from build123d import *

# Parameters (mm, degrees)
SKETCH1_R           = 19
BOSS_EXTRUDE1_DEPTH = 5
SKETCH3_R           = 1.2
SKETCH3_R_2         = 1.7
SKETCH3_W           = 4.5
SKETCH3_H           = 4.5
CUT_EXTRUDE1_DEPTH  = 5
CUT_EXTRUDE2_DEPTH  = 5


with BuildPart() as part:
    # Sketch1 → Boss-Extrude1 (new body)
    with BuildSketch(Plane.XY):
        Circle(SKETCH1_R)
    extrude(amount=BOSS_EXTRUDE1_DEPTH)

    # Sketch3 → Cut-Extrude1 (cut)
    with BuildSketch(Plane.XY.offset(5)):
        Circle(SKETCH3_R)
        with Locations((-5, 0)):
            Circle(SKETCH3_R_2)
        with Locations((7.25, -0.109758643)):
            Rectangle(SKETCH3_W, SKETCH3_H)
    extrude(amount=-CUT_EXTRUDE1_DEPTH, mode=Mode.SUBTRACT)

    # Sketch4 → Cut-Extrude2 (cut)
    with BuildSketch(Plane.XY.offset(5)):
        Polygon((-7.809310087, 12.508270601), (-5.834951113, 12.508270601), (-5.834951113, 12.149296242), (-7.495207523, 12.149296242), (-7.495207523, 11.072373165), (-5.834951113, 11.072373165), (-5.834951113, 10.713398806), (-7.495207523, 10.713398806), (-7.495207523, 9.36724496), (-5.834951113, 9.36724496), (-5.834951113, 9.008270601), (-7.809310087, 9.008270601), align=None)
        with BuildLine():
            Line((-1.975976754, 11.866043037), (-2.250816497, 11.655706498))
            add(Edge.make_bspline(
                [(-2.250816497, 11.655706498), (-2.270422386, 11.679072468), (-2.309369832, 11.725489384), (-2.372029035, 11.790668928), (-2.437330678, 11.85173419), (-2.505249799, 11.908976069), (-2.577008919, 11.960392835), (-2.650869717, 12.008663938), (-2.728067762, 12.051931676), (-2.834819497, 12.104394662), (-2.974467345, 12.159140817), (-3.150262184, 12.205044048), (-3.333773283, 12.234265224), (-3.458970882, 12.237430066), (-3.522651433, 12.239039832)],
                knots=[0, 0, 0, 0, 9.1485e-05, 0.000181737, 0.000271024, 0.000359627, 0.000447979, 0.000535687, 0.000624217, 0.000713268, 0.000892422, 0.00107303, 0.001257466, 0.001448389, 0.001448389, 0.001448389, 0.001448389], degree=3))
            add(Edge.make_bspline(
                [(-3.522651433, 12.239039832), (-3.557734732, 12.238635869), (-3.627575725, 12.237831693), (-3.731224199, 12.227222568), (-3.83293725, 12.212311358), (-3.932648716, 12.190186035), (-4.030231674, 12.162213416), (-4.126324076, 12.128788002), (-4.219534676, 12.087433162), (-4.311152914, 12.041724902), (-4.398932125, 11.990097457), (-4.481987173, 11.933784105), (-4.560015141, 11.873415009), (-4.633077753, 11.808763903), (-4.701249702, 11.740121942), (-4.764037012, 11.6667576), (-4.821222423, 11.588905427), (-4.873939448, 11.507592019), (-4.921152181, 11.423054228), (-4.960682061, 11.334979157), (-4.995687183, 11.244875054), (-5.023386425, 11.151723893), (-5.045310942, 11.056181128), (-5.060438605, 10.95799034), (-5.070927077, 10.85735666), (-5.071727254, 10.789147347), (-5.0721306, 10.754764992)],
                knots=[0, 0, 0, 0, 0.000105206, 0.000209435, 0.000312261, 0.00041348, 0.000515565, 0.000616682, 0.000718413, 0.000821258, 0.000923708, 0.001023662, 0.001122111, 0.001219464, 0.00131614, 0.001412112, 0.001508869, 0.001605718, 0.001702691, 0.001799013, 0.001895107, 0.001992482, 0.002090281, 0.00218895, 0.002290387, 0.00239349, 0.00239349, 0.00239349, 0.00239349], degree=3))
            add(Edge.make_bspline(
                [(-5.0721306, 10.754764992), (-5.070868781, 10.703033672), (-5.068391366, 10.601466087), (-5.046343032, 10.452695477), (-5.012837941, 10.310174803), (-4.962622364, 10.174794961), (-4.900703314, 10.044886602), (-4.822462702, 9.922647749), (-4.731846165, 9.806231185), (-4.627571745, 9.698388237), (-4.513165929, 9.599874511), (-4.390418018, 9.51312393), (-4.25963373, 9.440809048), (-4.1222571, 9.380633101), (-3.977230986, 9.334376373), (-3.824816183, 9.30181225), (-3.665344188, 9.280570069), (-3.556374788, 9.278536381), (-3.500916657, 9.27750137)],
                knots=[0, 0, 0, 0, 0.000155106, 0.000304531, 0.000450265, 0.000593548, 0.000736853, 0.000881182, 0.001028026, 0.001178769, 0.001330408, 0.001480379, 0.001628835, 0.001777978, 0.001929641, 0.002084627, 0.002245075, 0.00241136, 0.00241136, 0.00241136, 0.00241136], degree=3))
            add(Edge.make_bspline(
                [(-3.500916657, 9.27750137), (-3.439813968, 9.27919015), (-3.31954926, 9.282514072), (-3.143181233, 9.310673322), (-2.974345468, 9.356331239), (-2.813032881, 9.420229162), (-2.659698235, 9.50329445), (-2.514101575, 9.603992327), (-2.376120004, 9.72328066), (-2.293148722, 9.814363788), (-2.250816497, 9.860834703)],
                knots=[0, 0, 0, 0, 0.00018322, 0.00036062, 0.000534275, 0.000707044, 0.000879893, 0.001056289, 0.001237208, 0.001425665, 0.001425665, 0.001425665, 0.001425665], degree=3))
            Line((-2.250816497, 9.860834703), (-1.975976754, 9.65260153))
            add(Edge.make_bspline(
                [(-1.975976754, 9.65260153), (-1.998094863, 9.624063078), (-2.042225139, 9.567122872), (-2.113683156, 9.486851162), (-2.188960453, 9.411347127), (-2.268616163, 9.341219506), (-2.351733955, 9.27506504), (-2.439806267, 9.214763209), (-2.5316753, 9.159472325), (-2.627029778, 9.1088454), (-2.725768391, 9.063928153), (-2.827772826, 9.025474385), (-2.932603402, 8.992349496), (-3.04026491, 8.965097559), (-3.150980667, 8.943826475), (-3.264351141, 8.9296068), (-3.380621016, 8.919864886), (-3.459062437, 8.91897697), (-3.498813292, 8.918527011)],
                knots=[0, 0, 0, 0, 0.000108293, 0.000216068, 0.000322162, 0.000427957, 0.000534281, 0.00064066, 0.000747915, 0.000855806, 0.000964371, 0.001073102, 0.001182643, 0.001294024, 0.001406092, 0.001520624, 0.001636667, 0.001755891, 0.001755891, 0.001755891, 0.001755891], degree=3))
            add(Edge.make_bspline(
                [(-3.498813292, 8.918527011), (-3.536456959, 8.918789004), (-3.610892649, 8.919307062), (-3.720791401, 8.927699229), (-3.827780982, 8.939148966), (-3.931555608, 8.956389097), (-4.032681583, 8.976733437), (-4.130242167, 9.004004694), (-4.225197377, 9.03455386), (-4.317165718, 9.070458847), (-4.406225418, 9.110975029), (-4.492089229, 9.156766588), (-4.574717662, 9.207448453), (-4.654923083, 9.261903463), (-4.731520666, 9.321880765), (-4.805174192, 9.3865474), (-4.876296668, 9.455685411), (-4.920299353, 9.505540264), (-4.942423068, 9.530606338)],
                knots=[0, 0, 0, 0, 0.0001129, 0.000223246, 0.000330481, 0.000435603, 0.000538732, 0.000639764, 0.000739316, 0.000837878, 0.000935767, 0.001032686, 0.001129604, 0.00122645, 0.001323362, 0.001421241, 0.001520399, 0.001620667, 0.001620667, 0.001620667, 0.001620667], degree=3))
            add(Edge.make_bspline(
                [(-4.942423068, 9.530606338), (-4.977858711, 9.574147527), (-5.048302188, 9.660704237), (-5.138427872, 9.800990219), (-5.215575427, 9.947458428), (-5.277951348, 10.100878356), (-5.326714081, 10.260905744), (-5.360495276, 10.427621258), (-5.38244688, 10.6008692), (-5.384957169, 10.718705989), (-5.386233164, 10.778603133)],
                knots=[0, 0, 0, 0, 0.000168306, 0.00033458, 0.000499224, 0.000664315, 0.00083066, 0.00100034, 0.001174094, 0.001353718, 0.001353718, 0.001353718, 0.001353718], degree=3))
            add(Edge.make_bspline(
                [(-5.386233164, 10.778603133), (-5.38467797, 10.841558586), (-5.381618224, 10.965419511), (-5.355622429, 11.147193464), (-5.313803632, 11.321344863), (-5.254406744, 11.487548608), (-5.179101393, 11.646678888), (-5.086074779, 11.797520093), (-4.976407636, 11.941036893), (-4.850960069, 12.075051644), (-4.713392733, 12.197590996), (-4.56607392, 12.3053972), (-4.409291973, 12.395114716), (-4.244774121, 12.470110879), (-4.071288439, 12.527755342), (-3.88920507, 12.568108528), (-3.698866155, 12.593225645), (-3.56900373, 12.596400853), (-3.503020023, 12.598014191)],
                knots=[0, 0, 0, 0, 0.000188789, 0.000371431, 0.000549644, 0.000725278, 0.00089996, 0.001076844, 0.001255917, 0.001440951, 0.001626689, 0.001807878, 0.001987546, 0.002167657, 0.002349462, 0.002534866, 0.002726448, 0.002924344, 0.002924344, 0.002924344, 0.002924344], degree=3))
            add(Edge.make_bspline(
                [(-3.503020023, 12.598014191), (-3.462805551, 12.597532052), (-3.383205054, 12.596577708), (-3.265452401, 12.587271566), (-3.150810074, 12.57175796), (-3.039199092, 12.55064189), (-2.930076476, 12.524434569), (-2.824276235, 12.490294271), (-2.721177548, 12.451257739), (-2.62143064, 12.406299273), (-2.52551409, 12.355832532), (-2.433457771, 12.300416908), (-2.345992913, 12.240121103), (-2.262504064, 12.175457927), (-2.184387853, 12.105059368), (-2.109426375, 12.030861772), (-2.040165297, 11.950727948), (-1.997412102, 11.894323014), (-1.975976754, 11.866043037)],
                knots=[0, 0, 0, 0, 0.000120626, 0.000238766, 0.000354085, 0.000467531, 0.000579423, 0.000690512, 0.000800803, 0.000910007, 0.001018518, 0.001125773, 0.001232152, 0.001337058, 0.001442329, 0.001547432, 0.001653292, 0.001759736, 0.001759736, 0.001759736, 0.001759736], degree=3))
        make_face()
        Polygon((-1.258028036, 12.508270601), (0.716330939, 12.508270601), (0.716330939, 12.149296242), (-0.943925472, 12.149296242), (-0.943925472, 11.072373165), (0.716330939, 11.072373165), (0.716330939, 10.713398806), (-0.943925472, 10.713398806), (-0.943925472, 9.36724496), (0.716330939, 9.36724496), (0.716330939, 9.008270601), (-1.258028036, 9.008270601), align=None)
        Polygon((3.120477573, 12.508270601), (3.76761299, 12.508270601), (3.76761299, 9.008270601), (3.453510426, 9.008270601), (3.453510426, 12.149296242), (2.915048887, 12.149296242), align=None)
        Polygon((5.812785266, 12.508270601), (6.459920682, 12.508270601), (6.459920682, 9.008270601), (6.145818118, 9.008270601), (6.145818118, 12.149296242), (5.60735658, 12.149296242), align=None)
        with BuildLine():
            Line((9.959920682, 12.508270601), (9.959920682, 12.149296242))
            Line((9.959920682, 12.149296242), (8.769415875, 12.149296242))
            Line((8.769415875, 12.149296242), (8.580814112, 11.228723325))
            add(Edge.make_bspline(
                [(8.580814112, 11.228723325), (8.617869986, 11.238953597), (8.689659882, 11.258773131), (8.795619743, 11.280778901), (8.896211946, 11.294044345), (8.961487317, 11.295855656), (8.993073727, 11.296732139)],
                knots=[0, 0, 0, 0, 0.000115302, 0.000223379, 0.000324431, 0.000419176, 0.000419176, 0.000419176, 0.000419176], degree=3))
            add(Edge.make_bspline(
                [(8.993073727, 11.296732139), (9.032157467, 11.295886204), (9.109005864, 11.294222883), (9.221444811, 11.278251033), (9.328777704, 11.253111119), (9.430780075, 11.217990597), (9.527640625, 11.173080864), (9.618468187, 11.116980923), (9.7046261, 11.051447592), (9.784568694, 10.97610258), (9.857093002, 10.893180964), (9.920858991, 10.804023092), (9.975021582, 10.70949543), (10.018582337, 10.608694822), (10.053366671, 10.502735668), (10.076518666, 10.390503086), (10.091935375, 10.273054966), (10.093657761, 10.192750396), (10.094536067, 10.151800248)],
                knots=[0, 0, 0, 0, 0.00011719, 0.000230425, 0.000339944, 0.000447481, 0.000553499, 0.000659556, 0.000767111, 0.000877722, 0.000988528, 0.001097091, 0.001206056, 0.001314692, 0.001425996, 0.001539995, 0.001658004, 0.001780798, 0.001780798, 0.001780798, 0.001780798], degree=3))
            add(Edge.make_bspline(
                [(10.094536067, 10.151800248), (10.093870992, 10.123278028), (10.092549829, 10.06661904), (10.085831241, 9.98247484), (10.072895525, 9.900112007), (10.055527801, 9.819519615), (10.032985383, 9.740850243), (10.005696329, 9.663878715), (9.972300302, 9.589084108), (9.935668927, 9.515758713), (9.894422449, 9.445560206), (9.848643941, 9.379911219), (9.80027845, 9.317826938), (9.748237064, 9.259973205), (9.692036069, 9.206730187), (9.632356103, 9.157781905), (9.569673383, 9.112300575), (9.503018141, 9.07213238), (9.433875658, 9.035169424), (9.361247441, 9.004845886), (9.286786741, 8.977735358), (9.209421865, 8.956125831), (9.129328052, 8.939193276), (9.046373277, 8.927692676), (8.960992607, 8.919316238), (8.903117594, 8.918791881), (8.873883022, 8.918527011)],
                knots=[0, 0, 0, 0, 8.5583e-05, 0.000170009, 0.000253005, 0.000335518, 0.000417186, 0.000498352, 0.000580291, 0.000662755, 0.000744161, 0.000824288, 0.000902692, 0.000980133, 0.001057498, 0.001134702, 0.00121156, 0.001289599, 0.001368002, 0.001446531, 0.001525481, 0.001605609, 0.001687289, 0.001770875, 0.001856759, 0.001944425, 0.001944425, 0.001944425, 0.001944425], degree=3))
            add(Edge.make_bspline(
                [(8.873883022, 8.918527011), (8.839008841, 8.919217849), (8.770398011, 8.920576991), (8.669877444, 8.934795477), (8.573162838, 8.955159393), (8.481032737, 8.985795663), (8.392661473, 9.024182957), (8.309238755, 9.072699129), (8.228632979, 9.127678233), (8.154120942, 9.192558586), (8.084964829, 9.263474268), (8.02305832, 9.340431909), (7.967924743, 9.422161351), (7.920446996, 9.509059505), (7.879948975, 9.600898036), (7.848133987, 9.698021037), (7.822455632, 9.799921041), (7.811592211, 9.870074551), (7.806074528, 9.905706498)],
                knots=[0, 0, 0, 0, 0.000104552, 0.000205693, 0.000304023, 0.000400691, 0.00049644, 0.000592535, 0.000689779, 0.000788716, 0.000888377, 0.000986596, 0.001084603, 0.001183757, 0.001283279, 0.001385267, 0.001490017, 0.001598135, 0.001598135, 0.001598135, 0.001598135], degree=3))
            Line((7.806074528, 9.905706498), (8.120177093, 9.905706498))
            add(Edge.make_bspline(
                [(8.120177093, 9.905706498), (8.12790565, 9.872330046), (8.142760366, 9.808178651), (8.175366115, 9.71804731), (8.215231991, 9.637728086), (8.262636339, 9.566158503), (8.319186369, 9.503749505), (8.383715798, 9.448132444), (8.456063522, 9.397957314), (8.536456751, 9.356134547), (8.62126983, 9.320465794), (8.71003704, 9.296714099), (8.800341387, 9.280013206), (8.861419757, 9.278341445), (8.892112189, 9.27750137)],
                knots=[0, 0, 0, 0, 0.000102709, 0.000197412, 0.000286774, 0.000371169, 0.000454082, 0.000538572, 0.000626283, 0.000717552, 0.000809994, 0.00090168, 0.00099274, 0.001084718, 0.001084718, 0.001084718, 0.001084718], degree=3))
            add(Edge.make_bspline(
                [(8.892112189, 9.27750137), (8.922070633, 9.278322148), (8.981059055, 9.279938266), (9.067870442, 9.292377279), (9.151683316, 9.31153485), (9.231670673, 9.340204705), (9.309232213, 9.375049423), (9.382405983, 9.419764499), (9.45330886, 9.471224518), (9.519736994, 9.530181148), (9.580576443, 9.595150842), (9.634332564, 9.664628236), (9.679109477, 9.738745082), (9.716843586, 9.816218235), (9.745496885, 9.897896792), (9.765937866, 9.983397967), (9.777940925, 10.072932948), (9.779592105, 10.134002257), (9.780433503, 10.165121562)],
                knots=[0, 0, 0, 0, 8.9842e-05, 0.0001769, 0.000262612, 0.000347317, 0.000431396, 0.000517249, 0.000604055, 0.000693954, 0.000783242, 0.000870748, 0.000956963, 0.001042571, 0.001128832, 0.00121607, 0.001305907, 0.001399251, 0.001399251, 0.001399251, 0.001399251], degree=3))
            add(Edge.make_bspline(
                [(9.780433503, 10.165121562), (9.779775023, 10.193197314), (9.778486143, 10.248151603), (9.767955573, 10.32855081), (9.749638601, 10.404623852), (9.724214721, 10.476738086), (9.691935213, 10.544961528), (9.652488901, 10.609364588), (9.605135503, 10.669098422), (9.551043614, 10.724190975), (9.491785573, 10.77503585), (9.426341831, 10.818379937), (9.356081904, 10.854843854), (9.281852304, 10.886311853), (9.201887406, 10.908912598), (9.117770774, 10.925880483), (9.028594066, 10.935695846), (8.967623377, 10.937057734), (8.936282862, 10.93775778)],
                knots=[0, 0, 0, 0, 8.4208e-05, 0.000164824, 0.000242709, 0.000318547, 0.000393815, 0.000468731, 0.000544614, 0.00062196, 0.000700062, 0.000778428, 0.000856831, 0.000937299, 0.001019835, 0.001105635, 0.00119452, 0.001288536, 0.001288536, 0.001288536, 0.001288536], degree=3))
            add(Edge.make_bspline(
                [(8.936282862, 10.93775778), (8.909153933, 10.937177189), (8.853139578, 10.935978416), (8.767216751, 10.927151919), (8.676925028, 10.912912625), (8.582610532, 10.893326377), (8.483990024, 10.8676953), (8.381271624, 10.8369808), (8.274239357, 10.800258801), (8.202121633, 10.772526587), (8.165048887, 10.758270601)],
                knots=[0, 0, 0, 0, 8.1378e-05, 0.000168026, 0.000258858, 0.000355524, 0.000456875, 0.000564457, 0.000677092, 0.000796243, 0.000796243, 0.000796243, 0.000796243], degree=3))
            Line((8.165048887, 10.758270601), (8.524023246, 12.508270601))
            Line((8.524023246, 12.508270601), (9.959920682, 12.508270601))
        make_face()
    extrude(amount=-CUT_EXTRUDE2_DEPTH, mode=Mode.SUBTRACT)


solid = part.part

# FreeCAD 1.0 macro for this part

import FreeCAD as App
import Part
import Sketcher
from FreeCAD import Vector
Q = App.Units.Quantity

doc = App.newDocument("Part")
body = doc.addObject("PartDesign::Body", "Body")

# Sketch on XY plane
sketch1 = doc.addObject("Sketcher::SketchObject", "Sketch")
body.addObject(sketch1)
sketch1.AttachmentSupport = (doc.XY_Plane, [""])
sketch1.MapMode = "FlatFace"
sketch1.addGeometry(Part.Circle(Vector(0, 0, 0), Vector(0, 0, 1), 19), False)
sketch1.addConstraint([
    Sketcher.Constraint("Coincident", 0, 3, -1, 1),
    Sketcher.Constraint("Diameter", 0, Q("38 mm")),
])
pad1 = doc.addObject("PartDesign::Pad", "Pad")
body.addObject(pad1)
pad1.Profile = sketch1
pad1.Length = 5

# Sketch on XY plane
sketch2 = doc.addObject("Sketcher::SketchObject", "Sketch001")
body.addObject(sketch2)
sketch2.AttachmentSupport = (doc.XY_Plane, [""])
sketch2.MapMode = "FlatFace"
sketch2.AttachmentOffset = App.Placement(Vector(0, 0, 5), App.Rotation())
sketch2.addGeometry([
    Part.Circle(Vector(0, 0, 0), Vector(0, 0, 1), 1.2),  # 0
    Part.Circle(Vector(-5, 0, 0), Vector(0, 0, 1), 1.7),  # 1
    Part.LineSegment(Vector(5, 2.140241, 0), Vector(5, -2.359759, 0)),  # 2
    Part.LineSegment(Vector(5, -2.359759, 0), Vector(9.5, -2.359759, 0)),  # 3
    Part.LineSegment(Vector(9.5, -2.359759, 0), Vector(9.5, 2.140241, 0)),  # 4
    Part.LineSegment(Vector(9.5, 2.140241, 0), Vector(5, 2.140241, 0)),  # 5
], False)
sketch2.addConstraint([
    Sketcher.Constraint("Coincident", 2, 2, 3, 1),
    Sketcher.Constraint("Coincident", 3, 2, 4, 1),
    Sketcher.Constraint("Coincident", 4, 2, 5, 1),
    Sketcher.Constraint("Coincident", 5, 2, 2, 1),
    Sketcher.Constraint("Vertical", 2),
    Sketcher.Constraint("Horizontal", 3),
    Sketcher.Constraint("Vertical", 4),
    Sketcher.Constraint("Horizontal", 5),
    Sketcher.Constraint("Coincident", 0, 3, -1, 1),
    Sketcher.Constraint("PointOnObject", 1, 3, -1),
    Sketcher.Constraint("Equal", 5, 2),
    Sketcher.Constraint("Diameter", 0, Q("2.4 mm")),
    Sketcher.Constraint("Diameter", 1, Q("3.4 mm")),
    Sketcher.Constraint("DistanceX", 3, 1, 3, 2, Q("4.5 mm")),
    Sketcher.Constraint("DistanceX", 1, 3, -1, 1, Q("5 mm")),
    Sketcher.Constraint("DistanceX", -1, 1, 2, 2, Q("5 mm")),
    Sketcher.Constraint("DistanceY", 2, 2, -1, 1, Q("2.359759 mm")),
])
pocket1 = doc.addObject("PartDesign::Pocket", "Pocket")
body.addObject(pocket1)
pocket1.Profile = sketch2
pocket1.Length = 5

# Sketch on XY plane
sketch3 = doc.addObject("Sketcher::SketchObject", "Sketch002")
body.addObject(sketch3)
sketch3.AttachmentSupport = (doc.XY_Plane, [""])
sketch3.MapMode = "FlatFace"
sketch3.AttachmentOffset = App.Placement(Vector(0, 0, 5), App.Rotation())
sketch3.addGeometry([
    Part.LineSegment(Vector(-5.834951, 12.508271, 0), Vector(-7.80931, 12.508271, 0)),  # 0
    Part.LineSegment(Vector(-7.80931, 12.508271, 0), Vector(-7.80931, 9.008271, 0)),  # 1
    Part.LineSegment(Vector(-7.80931, 9.008271, 0), Vector(-5.834951, 9.008271, 0)),  # 2
    Part.LineSegment(Vector(-5.834951, 9.008271, 0), Vector(-5.834951, 9.367245, 0)),  # 3
    Part.LineSegment(Vector(-5.834951, 9.367245, 0), Vector(-7.495208, 9.367245, 0)),  # 4
    Part.LineSegment(Vector(-7.495208, 9.367245, 0), Vector(-7.495208, 10.713399, 0)),  # 5
    Part.LineSegment(Vector(-7.495208, 10.713399, 0), Vector(-5.834951, 10.713399, 0)),  # 6
    Part.LineSegment(Vector(-5.834951, 10.713399, 0), Vector(-5.834951, 11.072373, 0)),  # 7
    Part.LineSegment(Vector(-5.834951, 11.072373, 0), Vector(-7.495208, 11.072373, 0)),  # 8
    Part.LineSegment(Vector(-7.495208, 11.072373, 0), Vector(-7.495208, 12.149296, 0)),  # 9
    Part.LineSegment(Vector(-7.495208, 12.149296, 0), Vector(-5.834951, 12.149296, 0)),  # 10
    Part.LineSegment(Vector(-5.834951, 12.149296, 0), Vector(-5.834951, 12.508271, 0)),  # 11
    Part.LineSegment(Vector(-2.250816, 11.655706, 0), Vector(-1.975977, 11.866043, 0)),  # 12
    Part.BSplineCurve([Vector(-3.50302, 12.598014, 0), Vector(-3.462806, 12.597532, 0), Vector(-3.383205, 12.596578, 0), Vector(-3.265452, 12.587272, 0), Vector(-3.15081, 12.571758, 0), Vector(-3.039199, 12.550642, 0), Vector(-2.930076, 12.524435, 0), Vector(-2.824276, 12.490294, 0), Vector(-2.721178, 12.451258, 0), Vector(-2.621431, 12.406299, 0), Vector(-2.525514, 12.355833, 0), Vector(-2.433458, 12.300417, 0), Vector(-2.345993, 12.240121, 0), Vector(-2.262504, 12.175458, 0), Vector(-2.184388, 12.105059, 0), Vector(-2.109426, 12.030862, 0), Vector(-2.040165, 11.950728, 0), Vector(-1.997412, 11.894323, 0), Vector(-1.975977, 11.866043, 0)], [4, 1, 1, 1, 1, 1, 1, 1, 1, 1, 1, 1, 1, 1, 1, 1, 4], [0, 0.000120626, 0.000238766, 0.000354085, 0.000467531, 0.000579423, 0.000690512, 0.000800803, 0.000910007, 0.001018518, 0.001125773, 0.001232152, 0.001337058, 0.001442329, 0.001547432, 0.001653292, 0.001759736], False, 3, [1, 1, 1, 1, 1, 1, 1, 1, 1, 1, 1, 1, 1, 1, 1, 1, 1, 1, 1], False),  # 13
    Part.BSplineCurve([Vector(-5.386233, 10.778603, 0), Vector(-5.384678, 10.841559, 0), Vector(-5.381618, 10.96542, 0), Vector(-5.355622, 11.147193, 0), Vector(-5.313804, 11.321345, 0), Vector(-5.254407, 11.487549, 0), Vector(-5.179101, 11.646679, 0), Vector(-5.086075, 11.79752, 0), Vector(-4.976408, 11.941037, 0), Vector(-4.85096, 12.075052, 0), Vector(-4.713393, 12.197591, 0), Vector(-4.566074, 12.305397, 0), Vector(-4.409292, 12.395115, 0), Vector(-4.244774, 12.470111, 0), Vector(-4.071288, 12.527755, 0), Vector(-3.889205, 12.568109, 0), Vector(-3.698866, 12.593226, 0), Vector(-3.569004, 12.596401, 0), Vector(-3.50302, 12.598014, 0)], [4, 1, 1, 1, 1, 1, 1, 1, 1, 1, 1, 1, 1, 1, 1, 1, 4], [0, 0.000188789, 0.000371431, 0.000549644, 0.000725278, 0.00089996, 0.001076844, 0.001255917, 0.001440951, 0.001626689, 0.001807878, 0.001987546, 0.002167657, 0.002349462, 0.002534866, 0.002726448, 0.002924344], False, 3, [1, 1, 1, 1, 1, 1, 1, 1, 1, 1, 1, 1, 1, 1, 1, 1, 1, 1, 1], False),  # 14
    Part.BSplineCurve([Vector(-4.942423, 9.530606, 0), Vector(-4.977859, 9.574148, 0), Vector(-5.048302, 9.660704, 0), Vector(-5.138428, 9.80099, 0), Vector(-5.215575, 9.947458, 0), Vector(-5.277951, 10.100878, 0), Vector(-5.326714, 10.260906, 0), Vector(-5.360495, 10.427621, 0), Vector(-5.382447, 10.600869, 0), Vector(-5.384957, 10.718706, 0), Vector(-5.386233, 10.778603, 0)], [4, 1, 1, 1, 1, 1, 1, 1, 4], [0, 0.000168306, 0.00033458, 0.000499224, 0.000664315, 0.00083066, 0.00100034, 0.001174094, 0.001353718], False, 3, [1, 1, 1, 1, 1, 1, 1, 1, 1, 1, 1], False),  # 15
    Part.BSplineCurve([Vector(-3.498813, 8.918527, 0), Vector(-3.536457, 8.918789, 0), Vector(-3.610893, 8.919307, 0), Vector(-3.720791, 8.927699, 0), Vector(-3.827781, 8.939149, 0), Vector(-3.931556, 8.956389, 0), Vector(-4.032682, 8.976733, 0), Vector(-4.130242, 9.004005, 0), Vector(-4.225197, 9.034554, 0), Vector(-4.317166, 9.070459, 0), Vector(-4.406225, 9.110975, 0), Vector(-4.492089, 9.156767, 0), Vector(-4.574718, 9.207448, 0), Vector(-4.654923, 9.261903, 0), Vector(-4.731521, 9.321881, 0), Vector(-4.805174, 9.386547, 0), Vector(-4.876297, 9.455685, 0), Vector(-4.920299, 9.50554, 0), Vector(-4.942423, 9.530606, 0)], [4, 1, 1, 1, 1, 1, 1, 1, 1, 1, 1, 1, 1, 1, 1, 1, 4], [0, 0.0001129, 0.000223246, 0.000330481, 0.000435603, 0.000538732, 0.000639764, 0.000739316, 0.000837878, 0.000935767, 0.001032686, 0.001129604, 0.00122645, 0.001323362, 0.001421241, 0.001520399, 0.001620667], False, 3, [1, 1, 1, 1, 1, 1, 1, 1, 1, 1, 1, 1, 1, 1, 1, 1, 1, 1, 1], False),  # 16
    Part.BSplineCurve([Vector(-1.975977, 9.652602, 0), Vector(-1.998095, 9.624063, 0), Vector(-2.042225, 9.567123, 0), Vector(-2.113683, 9.486851, 0), Vector(-2.18896, 9.411347, 0), Vector(-2.268616, 9.34122, 0), Vector(-2.351734, 9.275065, 0), Vector(-2.439806, 9.214763, 0), Vector(-2.531675, 9.159472, 0), Vector(-2.62703, 9.108845, 0), Vector(-2.725768, 9.063928, 0), Vector(-2.827773, 9.025474, 0), Vector(-2.932603, 8.992349, 0), Vector(-3.040265, 8.965098, 0), Vector(-3.150981, 8.943826, 0), Vector(-3.264351, 8.929607, 0), Vector(-3.380621, 8.919865, 0), Vector(-3.459062, 8.918977, 0), Vector(-3.498813, 8.918527, 0)], [4, 1, 1, 1, 1, 1, 1, 1, 1, 1, 1, 1, 1, 1, 1, 1, 4], [0, 0.000108293, 0.000216068, 0.000322162, 0.000427957, 0.000534281, 0.00064066, 0.000747915, 0.000855806, 0.000964371, 0.001073102, 0.001182643, 0.001294024, 0.001406092, 0.001520624, 0.001636667, 0.001755891], False, 3, [1, 1, 1, 1, 1, 1, 1, 1, 1, 1, 1, 1, 1, 1, 1, 1, 1, 1, 1], False),  # 17
    Part.LineSegment(Vector(-1.975977, 9.652602, 0), Vector(-2.250816, 9.860835, 0)),  # 18
    Part.BSplineCurve([Vector(-3.500917, 9.277501, 0), Vector(-3.439814, 9.27919, 0), Vector(-3.319549, 9.282514, 0), Vector(-3.143181, 9.310673, 0), Vector(-2.974345, 9.356331, 0), Vector(-2.813033, 9.420229, 0), Vector(-2.659698, 9.503294, 0), Vector(-2.514102, 9.603992, 0), Vector(-2.37612, 9.723281, 0), Vector(-2.293149, 9.814364, 0), Vector(-2.250816, 9.860835, 0)], [4, 1, 1, 1, 1, 1, 1, 1, 4], [0, 0.00018322, 0.00036062, 0.000534275, 0.000707044, 0.000879893, 0.001056289, 0.001237208, 0.001425665], False, 3, [1, 1, 1, 1, 1, 1, 1, 1, 1, 1, 1], False),  # 19
    Part.BSplineCurve([Vector(-5.072131, 10.754765, 0), Vector(-5.070869, 10.703034, 0), Vector(-5.068391, 10.601466, 0), Vector(-5.046343, 10.452695, 0), Vector(-5.012838, 10.310175, 0), Vector(-4.962622, 10.174795, 0), Vector(-4.900703, 10.044887, 0), Vector(-4.822463, 9.922648, 0), Vector(-4.731846, 9.806231, 0), Vector(-4.627572, 9.698388, 0), Vector(-4.513166, 9.599875, 0), Vector(-4.390418, 9.513124, 0), Vector(-4.259634, 9.440809, 0), Vector(-4.122257, 9.380633, 0), Vector(-3.977231, 9.334376, 0), Vector(-3.824816, 9.301812, 0), Vector(-3.665344, 9.28057, 0), Vector(-3.556375, 9.278536, 0), Vector(-3.500917, 9.277501, 0)], [4, 1, 1, 1, 1, 1, 1, 1, 1, 1, 1, 1, 1, 1, 1, 1, 4], [0, 0.000155106, 0.000304531, 0.000450265, 0.000593548, 0.000736853, 0.000881182, 0.001028026, 0.001178769, 0.001330408, 0.001480379, 0.001628835, 0.001777978, 0.001929641, 0.002084627, 0.002245075, 0.00241136], False, 3, [1, 1, 1, 1, 1, 1, 1, 1, 1, 1, 1, 1, 1, 1, 1, 1, 1, 1, 1], False),  # 20
    Part.BSplineCurve([Vector(-3.522651, 12.23904, 0), Vector(-3.557735, 12.238636, 0), Vector(-3.627576, 12.237832, 0), Vector(-3.731224, 12.227223, 0), Vector(-3.832937, 12.212311, 0), Vector(-3.932649, 12.190186, 0), Vector(-4.030232, 12.162213, 0), Vector(-4.126324, 12.128788, 0), Vector(-4.219535, 12.087433, 0), Vector(-4.311153, 12.041725, 0), Vector(-4.398932, 11.990097, 0), Vector(-4.481987, 11.933784, 0), Vector(-4.560015, 11.873415, 0), Vector(-4.633078, 11.808764, 0), Vector(-4.70125, 11.740122, 0), Vector(-4.764037, 11.666758, 0), Vector(-4.821222, 11.588905, 0), Vector(-4.873939, 11.507592, 0), Vector(-4.921152, 11.423054, 0), Vector(-4.960682, 11.334979, 0), Vector(-4.995687, 11.244875, 0), Vector(-5.023386, 11.151724, 0), Vector(-5.045311, 11.056181, 0), Vector(-5.060439, 10.95799, 0), Vector(-5.070927, 10.857357, 0), Vector(-5.071727, 10.789147, 0), Vector(-5.072131, 10.754765, 0)], [4, 1, 1, 1, 1, 1, 1, 1, 1, 1, 1, 1, 1, 1, 1, 1, 1, 1, 1, 1, 1, 1, 1, 1, 4], [0, 0.000105206, 0.000209435, 0.000312261, 0.00041348, 0.000515565, 0.000616682, 0.000718413, 0.000821258, 0.000923708, 0.001023662, 0.001122111, 0.001219464, 0.00131614, 0.001412112, 0.001508869, 0.001605718, 0.001702691, 0.001799013, 0.001895107, 0.001992482, 0.002090281, 0.00218895, 0.002290387, 0.00239349], False, 3, [1, 1, 1, 1, 1, 1, 1, 1, 1, 1, 1, 1, 1, 1, 1, 1, 1, 1, 1, 1, 1, 1, 1, 1, 1, 1, 1], False),  # 21
    Part.BSplineCurve([Vector(-2.250816, 11.655706, 0), Vector(-2.270422, 11.679072, 0), Vector(-2.30937, 11.725489, 0), Vector(-2.372029, 11.790669, 0), Vector(-2.437331, 11.851734, 0), Vector(-2.50525, 11.908976, 0), Vector(-2.577009, 11.960393, 0), Vector(-2.65087, 12.008664, 0), Vector(-2.728068, 12.051932, 0), Vector(-2.834819, 12.104395, 0), Vector(-2.974467, 12.159141, 0), Vector(-3.150262, 12.205044, 0), Vector(-3.333773, 12.234265, 0), Vector(-3.458971, 12.23743, 0), Vector(-3.522651, 12.23904, 0)], [4, 1, 1, 1, 1, 1, 1, 1, 1, 1, 1, 1, 4], [0, 0.000091485, 0.000181737, 0.000271024, 0.000359627, 0.000447979, 0.000535687, 0.000624217, 0.000713268, 0.000892422, 0.00107303, 0.001257466, 0.001448389], False, 3, [1, 1, 1, 1, 1, 1, 1, 1, 1, 1, 1, 1, 1, 1, 1], False),  # 22
    Part.LineSegment(Vector(0.716331, 12.508271, 0), Vector(-1.258028, 12.508271, 0)),  # 23
    Part.LineSegment(Vector(-1.258028, 12.508271, 0), Vector(-1.258028, 9.008271, 0)),  # 24
    Part.LineSegment(Vector(-1.258028, 9.008271, 0), Vector(0.716331, 9.008271, 0)),  # 25
    Part.LineSegment(Vector(0.716331, 9.008271, 0), Vector(0.716331, 9.367245, 0)),  # 26
    Part.LineSegment(Vector(0.716331, 9.367245, 0), Vector(-0.943925, 9.367245, 0)),  # 27
    Part.LineSegment(Vector(-0.943925, 9.367245, 0), Vector(-0.943925, 10.713399, 0)),  # 28
    Part.LineSegment(Vector(-0.943925, 10.713399, 0), Vector(0.716331, 10.713399, 0)),  # 29
    Part.LineSegment(Vector(0.716331, 10.713399, 0), Vector(0.716331, 11.072373, 0)),  # 30
    Part.LineSegment(Vector(0.716331, 11.072373, 0), Vector(-0.943925, 11.072373, 0)),  # 31
    Part.LineSegment(Vector(-0.943925, 11.072373, 0), Vector(-0.943925, 12.149296, 0)),  # 32
    Part.LineSegment(Vector(-0.943925, 12.149296, 0), Vector(0.716331, 12.149296, 0)),  # 33
    Part.LineSegment(Vector(0.716331, 12.149296, 0), Vector(0.716331, 12.508271, 0)),  # 34
    Part.LineSegment(Vector(3.767613, 12.508271, 0), Vector(3.120478, 12.508271, 0)),  # 35
    Part.LineSegment(Vector(3.120478, 12.508271, 0), Vector(2.915049, 12.149296, 0)),  # 36
    Part.LineSegment(Vector(2.915049, 12.149296, 0), Vector(3.45351, 12.149296, 0)),  # 37
    Part.LineSegment(Vector(3.45351, 12.149296, 0), Vector(3.45351, 9.008271, 0)),  # 38
    Part.LineSegment(Vector(3.45351, 9.008271, 0), Vector(3.767613, 9.008271, 0)),  # 39
    Part.LineSegment(Vector(3.767613, 9.008271, 0), Vector(3.767613, 12.508271, 0)),  # 40
    Part.LineSegment(Vector(6.459921, 12.508271, 0), Vector(5.812785, 12.508271, 0)),  # 41
    Part.LineSegment(Vector(5.812785, 12.508271, 0), Vector(5.607357, 12.149296, 0)),  # 42
    Part.LineSegment(Vector(5.607357, 12.149296, 0), Vector(6.145818, 12.149296, 0)),  # 43
    Part.LineSegment(Vector(6.145818, 12.149296, 0), Vector(6.145818, 9.008271, 0)),  # 44
    Part.LineSegment(Vector(6.145818, 9.008271, 0), Vector(6.459921, 9.008271, 0)),  # 45
    Part.LineSegment(Vector(6.459921, 9.008271, 0), Vector(6.459921, 12.508271, 0)),  # 46
    Part.LineSegment(Vector(9.959921, 12.149296, 0), Vector(9.959921, 12.508271, 0)),  # 47
    Part.LineSegment(Vector(9.959921, 12.508271, 0), Vector(8.524023, 12.508271, 0)),  # 48
    Part.LineSegment(Vector(8.524023, 12.508271, 0), Vector(8.165049, 10.758271, 0)),  # 49
    Part.BSplineCurve([Vector(8.936283, 10.937758, 0), Vector(8.909154, 10.937177, 0), Vector(8.85314, 10.935978, 0), Vector(8.767217, 10.927152, 0), Vector(8.676925, 10.912913, 0), Vector(8.582611, 10.893326, 0), Vector(8.48399, 10.867695, 0), Vector(8.381272, 10.836981, 0), Vector(8.274239, 10.800259, 0), Vector(8.202122, 10.772527, 0), Vector(8.165049, 10.758271, 0)], [4, 1, 1, 1, 1, 1, 1, 1, 4], [0, 0.000081378, 0.000168026, 0.000258858, 0.000355524, 0.000456875, 0.000564457, 0.000677092, 0.000796243], False, 3, [1, 1, 1, 1, 1, 1, 1, 1, 1, 1, 1], False),  # 50
    Part.BSplineCurve([Vector(9.780434, 10.165122, 0), Vector(9.779775, 10.193197, 0), Vector(9.778486, 10.248152, 0), Vector(9.767956, 10.328551, 0), Vector(9.749639, 10.404624, 0), Vector(9.724215, 10.476738, 0), Vector(9.691935, 10.544962, 0), Vector(9.652489, 10.609365, 0), Vector(9.605136, 10.669098, 0), Vector(9.551044, 10.724191, 0), Vector(9.491786, 10.775036, 0), Vector(9.426342, 10.81838, 0), Vector(9.356082, 10.854844, 0), Vector(9.281852, 10.886312, 0), Vector(9.201887, 10.908913, 0), Vector(9.117771, 10.92588, 0), Vector(9.028594, 10.935696, 0), Vector(8.967623, 10.937058, 0), Vector(8.936283, 10.937758, 0)], [4, 1, 1, 1, 1, 1, 1, 1, 1, 1, 1, 1, 1, 1, 1, 1, 4], [0, 0.000084208, 0.000164824, 0.000242709, 0.000318547, 0.000393815, 0.000468731, 0.000544614, 0.00062196, 0.000700062, 0.000778428, 0.000856831, 0.000937299, 0.001019835, 0.001105635, 0.00119452, 0.001288536], False, 3, [1, 1, 1, 1, 1, 1, 1, 1, 1, 1, 1, 1, 1, 1, 1, 1, 1, 1, 1], False),  # 51
    Part.BSplineCurve([Vector(8.892112, 9.277501, 0), Vector(8.922071, 9.278322, 0), Vector(8.981059, 9.279938, 0), Vector(9.06787, 9.292377, 0), Vector(9.151683, 9.311535, 0), Vector(9.231671, 9.340205, 0), Vector(9.309232, 9.375049, 0), Vector(9.382406, 9.419764, 0), Vector(9.453309, 9.471225, 0), Vector(9.519737, 9.530181, 0), Vector(9.580576, 9.595151, 0), Vector(9.634333, 9.664628, 0), Vector(9.679109, 9.738745, 0), Vector(9.716844, 9.816218, 0), Vector(9.745497, 9.897897, 0), Vector(9.765938, 9.983398, 0), Vector(9.777941, 10.072933, 0), Vector(9.779592, 10.134002, 0), Vector(9.780434, 10.165122, 0)], [4, 1, 1, 1, 1, 1, 1, 1, 1, 1, 1, 1, 1, 1, 1, 1, 4], [0, 0.000089842, 0.0001769, 0.000262612, 0.000347317, 0.000431396, 0.000517249, 0.000604055, 0.000693954, 0.000783242, 0.000870748, 0.000956963, 0.001042571, 0.001128832, 0.00121607, 0.001305907, 0.001399251], False, 3, [1, 1, 1, 1, 1, 1, 1, 1, 1, 1, 1, 1, 1, 1, 1, 1, 1, 1, 1], False),  # 52
    Part.BSplineCurve([Vector(8.120177, 9.905706, 0), Vector(8.127906, 9.87233, 0), Vector(8.14276, 9.808179, 0), Vector(8.175366, 9.718047, 0), Vector(8.215232, 9.637728, 0), Vector(8.262636, 9.566159, 0), Vector(8.319186, 9.50375, 0), Vector(8.383716, 9.448132, 0), Vector(8.456064, 9.397957, 0), Vector(8.536457, 9.356135, 0), Vector(8.62127, 9.320466, 0), Vector(8.710037, 9.296714, 0), Vector(8.800341, 9.280013, 0), Vector(8.86142, 9.278341, 0), Vector(8.892112, 9.277501, 0)], [4, 1, 1, 1, 1, 1, 1, 1, 1, 1, 1, 1, 4], [0, 0.000102709, 0.000197412, 0.000286774, 0.000371169, 0.000454082, 0.000538572, 0.000626283, 0.000717552, 0.000809994, 0.00090168, 0.00099274, 0.001084718], False, 3, [1, 1, 1, 1, 1, 1, 1, 1, 1, 1, 1, 1, 1, 1, 1], False),  # 53
    Part.LineSegment(Vector(8.120177, 9.905706, 0), Vector(7.806075, 9.905706, 0)),  # 54
    Part.BSplineCurve([Vector(8.873883, 8.918527, 0), Vector(8.839009, 8.919218, 0), Vector(8.770398, 8.920577, 0), Vector(8.669877, 8.934795, 0), Vector(8.573163, 8.955159, 0), Vector(8.481033, 8.985796, 0), Vector(8.392661, 9.024183, 0), Vector(8.309239, 9.072699, 0), Vector(8.228633, 9.127678, 0), Vector(8.154121, 9.192559, 0), Vector(8.084965, 9.263474, 0), Vector(8.023058, 9.340432, 0), Vector(7.967925, 9.422161, 0), Vector(7.920447, 9.50906, 0), Vector(7.879949, 9.600898, 0), Vector(7.848134, 9.698021, 0), Vector(7.822456, 9.799921, 0), Vector(7.811592, 9.870075, 0), Vector(7.806075, 9.905706, 0)], [4, 1, 1, 1, 1, 1, 1, 1, 1, 1, 1, 1, 1, 1, 1, 1, 4], [0, 0.000104552, 0.000205693, 0.000304023, 0.000400691, 0.00049644, 0.000592535, 0.000689779, 0.000788716, 0.000888377, 0.000986596, 0.001084603, 0.001183757, 0.001283279, 0.001385267, 0.001490017, 0.001598135], False, 3, [1, 1, 1, 1, 1, 1, 1, 1, 1, 1, 1, 1, 1, 1, 1, 1, 1, 1, 1], False),  # 55
    Part.BSplineCurve([Vector(10.094536, 10.1518, 0), Vector(10.093871, 10.123278, 0), Vector(10.09255, 10.066619, 0), Vector(10.085831, 9.982475, 0), Vector(10.072896, 9.900112, 0), Vector(10.055528, 9.81952, 0), Vector(10.032985, 9.74085, 0), Vector(10.005696, 9.663879, 0), Vector(9.9723, 9.589084, 0), Vector(9.935669, 9.515759, 0), Vector(9.894422, 9.44556, 0), Vector(9.848644, 9.379911, 0), Vector(9.800278, 9.317827, 0), Vector(9.748237, 9.259973, 0), Vector(9.692036, 9.20673, 0), Vector(9.632356, 9.157782, 0), Vector(9.569673, 9.112301, 0), Vector(9.503018, 9.072132, 0), Vector(9.433876, 9.035169, 0), Vector(9.361247, 9.004846, 0), Vector(9.286787, 8.977735, 0), Vector(9.209422, 8.956126, 0), Vector(9.129328, 8.939193, 0), Vector(9.046373, 8.927693, 0), Vector(8.960993, 8.919316, 0), Vector(8.903118, 8.918792, 0), Vector(8.873883, 8.918527, 0)], [4, 1, 1, 1, 1, 1, 1, 1, 1, 1, 1, 1, 1, 1, 1, 1, 1, 1, 1, 1, 1, 1, 1, 1, 4], [0, 0.000085583, 0.000170009, 0.000253005, 0.000335518, 0.000417186, 0.000498352, 0.000580291, 0.000662755, 0.000744161, 0.000824288, 0.000902692, 0.000980133, 0.001057498, 0.001134702, 0.00121156, 0.001289599, 0.001368002, 0.001446531, 0.001525481, 0.001605609, 0.001687289, 0.001770875, 0.001856759, 0.001944425], False, 3, [1, 1, 1, 1, 1, 1, 1, 1, 1, 1, 1, 1, 1, 1, 1, 1, 1, 1, 1, 1, 1, 1, 1, 1, 1, 1, 1], False),  # 56
    Part.BSplineCurve([Vector(8.993074, 11.296732, 0), Vector(9.032157, 11.295886, 0), Vector(9.109006, 11.294223, 0), Vector(9.221445, 11.278251, 0), Vector(9.328778, 11.253111, 0), Vector(9.43078, 11.217991, 0), Vector(9.527641, 11.173081, 0), Vector(9.618468, 11.116981, 0), Vector(9.704626, 11.051448, 0), Vector(9.784569, 10.976103, 0), Vector(9.857093, 10.893181, 0), Vector(9.920859, 10.804023, 0), Vector(9.975022, 10.709495, 0), Vector(10.018582, 10.608695, 0), Vector(10.053367, 10.502736, 0), Vector(10.076519, 10.390503, 0), Vector(10.091935, 10.273055, 0), Vector(10.093658, 10.19275, 0), Vector(10.094536, 10.1518, 0)], [4, 1, 1, 1, 1, 1, 1, 1, 1, 1, 1, 1, 1, 1, 1, 1, 4], [0, 0.00011719, 0.000230425, 0.000339944, 0.000447481, 0.000553499, 0.000659556, 0.000767111, 0.000877722, 0.000988528, 0.001097091, 0.001206056, 0.001314692, 0.001425996, 0.001539995, 0.001658004, 0.001780798], False, 3, [1, 1, 1, 1, 1, 1, 1, 1, 1, 1, 1, 1, 1, 1, 1, 1, 1, 1, 1], False),  # 57
    Part.BSplineCurve([Vector(8.580814, 11.228723, 0), Vector(8.61787, 11.238954, 0), Vector(8.68966, 11.258773, 0), Vector(8.79562, 11.280779, 0), Vector(8.896212, 11.294044, 0), Vector(8.961487, 11.295856, 0), Vector(8.993074, 11.296732, 0)], [4, 1, 1, 1, 4], [0, 0.000115302, 0.000223379, 0.000324431, 0.000419176], False, 3, [1, 1, 1, 1, 1, 1, 1], False),  # 58
    Part.LineSegment(Vector(8.580814, 11.228723, 0), Vector(8.769416, 12.149296, 0)),  # 59
    Part.LineSegment(Vector(8.769416, 12.149296, 0), Vector(9.959921, 12.149296, 0)),  # 60
], False)
sketch3.addConstraint([
    Sketcher.Constraint("Block", 13),
    Sketcher.Constraint("Block", 14),
    Sketcher.Constraint("Block", 15),
    Sketcher.Constraint("Block", 16),
    Sketcher.Constraint("Block", 17),
    Sketcher.Constraint("Block", 19),
    Sketcher.Constraint("Block", 20),
    Sketcher.Constraint("Block", 21),
    Sketcher.Constraint("Block", 22),
    Sketcher.Constraint("Block", 50),
    Sketcher.Constraint("Block", 51),
    Sketcher.Constraint("Block", 52),
    Sketcher.Constraint("Block", 53),
    Sketcher.Constraint("Block", 55),
    Sketcher.Constraint("Block", 56),
    Sketcher.Constraint("Block", 57),
    Sketcher.Constraint("Block", 58),
    Sketcher.Constraint("Coincident", 0, 2, 1, 1),
    Sketcher.Constraint("Coincident", 1, 2, 2, 1),
    Sketcher.Constraint("Coincident", 2, 2, 3, 1),
    Sketcher.Constraint("Coincident", 3, 2, 4, 1),
    Sketcher.Constraint("Coincident", 4, 2, 5, 1),
    Sketcher.Constraint("Coincident", 5, 2, 6, 1),
    Sketcher.Constraint("Coincident", 6, 2, 7, 1),
    Sketcher.Constraint("Coincident", 7, 2, 8, 1),
    Sketcher.Constraint("Coincident", 8, 2, 9, 1),
    Sketcher.Constraint("Coincident", 9, 2, 10, 1),
    Sketcher.Constraint("Coincident", 10, 2, 11, 1),
    Sketcher.Constraint("Coincident", 11, 2, 0, 1),
    Sketcher.Constraint("Coincident", 12, 2, 13, 2),
    Sketcher.Constraint("Coincident", 17, 1, 18, 1),
    Sketcher.Constraint("Coincident", 18, 2, 19, 2),
    Sketcher.Constraint("Coincident", 22, 1, 12, 1),
    Sketcher.Constraint("Coincident", 23, 2, 24, 1),
    Sketcher.Constraint("Coincident", 24, 2, 25, 1),
    Sketcher.Constraint("Coincident", 25, 2, 26, 1),
    Sketcher.Constraint("Coincident", 26, 2, 27, 1),
    Sketcher.Constraint("Coincident", 27, 2, 28, 1),
    Sketcher.Constraint("Coincident", 28, 2, 29, 1),
    Sketcher.Constraint("Coincident", 29, 2, 30, 1),
    Sketcher.Constraint("Coincident", 30, 2, 31, 1),
    Sketcher.Constraint("Coincident", 31, 2, 32, 1),
    Sketcher.Constraint("Coincident", 32, 2, 33, 1),
    Sketcher.Constraint("Coincident", 33, 2, 34, 1),
    Sketcher.Constraint("Coincident", 34, 2, 23, 1),
    Sketcher.Constraint("Coincident", 35, 2, 36, 1),
    Sketcher.Constraint("Coincident", 36, 2, 37, 1),
    Sketcher.Constraint("Coincident", 37, 2, 38, 1),
    Sketcher.Constraint("Coincident", 38, 2, 39, 1),
    Sketcher.Constraint("Coincident", 39, 2, 40, 1),
    Sketcher.Constraint("Coincident", 40, 2, 35, 1),
    Sketcher.Constraint("Coincident", 41, 2, 42, 1),
    Sketcher.Constraint("Coincident", 42, 2, 43, 1),
    Sketcher.Constraint("Coincident", 43, 2, 44, 1),
    Sketcher.Constraint("Coincident", 44, 2, 45, 1),
    Sketcher.Constraint("Coincident", 45, 2, 46, 1),
    Sketcher.Constraint("Coincident", 46, 2, 41, 1),
    Sketcher.Constraint("Coincident", 47, 2, 48, 1),
    Sketcher.Constraint("Coincident", 48, 2, 49, 1),
    Sketcher.Constraint("Coincident", 49, 2, 50, 2),
    Sketcher.Constraint("Coincident", 53, 1, 54, 1),
    Sketcher.Constraint("Coincident", 54, 2, 55, 2),
    Sketcher.Constraint("Coincident", 58, 1, 59, 1),
    Sketcher.Constraint("Coincident", 59, 2, 60, 1),
    Sketcher.Constraint("Coincident", 60, 2, 47, 1),
    Sketcher.Constraint("Horizontal", 0),
    Sketcher.Constraint("Vertical", 1),
    Sketcher.Constraint("Horizontal", 2),
    Sketcher.Constraint("Vertical", 3),
    Sketcher.Constraint("Horizontal", 4),
    Sketcher.Constraint("Vertical", 5),
    Sketcher.Constraint("Horizontal", 6),
    Sketcher.Constraint("Vertical", 7),
    Sketcher.Constraint("Horizontal", 8),
    Sketcher.Constraint("Vertical", 9),
    Sketcher.Constraint("Horizontal", 10),
    Sketcher.Constraint("Vertical", 11),
    Sketcher.Constraint("Horizontal", 23),
    Sketcher.Constraint("Vertical", 24),
    Sketcher.Constraint("Horizontal", 25),
    Sketcher.Constraint("Vertical", 26),
    Sketcher.Constraint("Horizontal", 27),
    Sketcher.Constraint("Vertical", 28),
    Sketcher.Constraint("Horizontal", 29),
    Sketcher.Constraint("Vertical", 30),
    Sketcher.Constraint("Horizontal", 31),
    Sketcher.Constraint("Vertical", 32),
    Sketcher.Constraint("Horizontal", 33),
    Sketcher.Constraint("Vertical", 34),
    Sketcher.Constraint("Horizontal", 35),
    Sketcher.Constraint("Horizontal", 37),
    Sketcher.Constraint("Vertical", 38),
    Sketcher.Constraint("Horizontal", 39),
    Sketcher.Constraint("Vertical", 40),
    Sketcher.Constraint("Horizontal", 41),
    Sketcher.Constraint("Horizontal", 43),
    Sketcher.Constraint("Vertical", 44),
    Sketcher.Constraint("Horizontal", 45),
    Sketcher.Constraint("Vertical", 46),
    Sketcher.Constraint("Vertical", 47),
    Sketcher.Constraint("Horizontal", 48),
    Sketcher.Constraint("Horizontal", 60),
    Sketcher.Constraint("DistanceY", 1, 2, 1, 1, Q("3.5 mm")),
    Sketcher.Constraint("DistanceY", 24, 2, 24, 1, Q("3.5 mm")),
    Sketcher.Constraint("DistanceY", 40, 1, 40, 2, Q("3.5 mm")),
    Sketcher.Constraint("DistanceY", 46, 1, 46, 2, Q("3.5 mm")),
    Sketcher.Constraint("DistanceY", 39, 2, 41, 2, Q("3.5 mm")),
    Sketcher.Constraint("DistanceX", 46, 2, 47, 2, Q("3.5 mm")),
    Sketcher.Constraint("DistanceY", 45, 2, 47, 2, Q("3.5 mm")),
    Sketcher.Constraint("DistanceY", 49, 2, 48, 2, Q("1.75 mm")),
    Sketcher.Constraint("Distance", 36, Q("0.413598 mm")),
    Sketcher.Constraint("Distance", 42, Q("0.413598 mm")),
    Sketcher.Constraint("DistanceX", 0, 2, 0, 1, Q("1.974359 mm")),
    Sketcher.Constraint("DistanceX", 2, 1, 2, 2, Q("1.974359 mm")),
    Sketcher.Constraint("DistanceX", 23, 2, 23, 1, Q("1.974359 mm")),
    Sketcher.Constraint("DistanceX", 25, 1, 25, 2, Q("1.974359 mm")),
    Sketcher.Constraint("DistanceX", 37, 1, 37, 2, Q("0.538462 mm")),
    Sketcher.Constraint("DistanceX", 43, 1, 43, 2, Q("0.538462 mm")),
    Sketcher.Constraint("DistanceY", -1, 1, 5, 2, Q("10.713399 mm")),
    Sketcher.Constraint("DistanceY", -1, 1, 28, 2, Q("10.713399 mm")),
    Sketcher.Constraint("DistanceY", 3, 2, 12, 2, Q("2.498798 mm")),
    Sketcher.Constraint("DistanceY", 26, 2, 12, 2, Q("2.498798 mm")),
    Sketcher.Constraint("Distance", 49, Q("1.786439 mm")),
    Sketcher.Constraint("DistanceX", 4, 2, 4, 1, Q("1.660256 mm")),
    Sketcher.Constraint("DistanceX", 6, 1, 6, 2, Q("1.660256 mm")),
    Sketcher.Constraint("DistanceX", 8, 2, 8, 1, Q("1.660256 mm")),
    Sketcher.Constraint("DistanceX", 27, 2, 27, 1, Q("1.660256 mm")),
    Sketcher.Constraint("DistanceX", 29, 1, 29, 2, Q("1.660256 mm")),
    Sketcher.Constraint("DistanceX", 31, 2, 31, 1, Q("1.660256 mm")),
    Sketcher.Constraint("DistanceX", 35, 2, 35, 1, Q("0.647135 mm")),
    Sketcher.Constraint("DistanceX", 39, 1, 39, 2, Q("0.314103 mm")),
    Sketcher.Constraint("DistanceX", 41, 2, 41, 1, Q("0.647135 mm")),
    Sketcher.Constraint("DistanceX", 45, 1, 45, 2, Q("0.314103 mm")),
    Sketcher.Constraint("DistanceX", 48, 2, 48, 1, Q("1.435897 mm")),
    Sketcher.Constraint("DistanceX", 60, 1, 60, 2, Q("1.190505 mm")),
    Sketcher.Constraint("DistanceY", 3, 1, 3, 2, Q("0.358974 mm")),
    Sketcher.Constraint("DistanceY", 7, 1, 7, 2, Q("0.358974 mm")),
    Sketcher.Constraint("DistanceY", 9, 1, 9, 2, Q("1.076923 mm")),
    Sketcher.Constraint("DistanceY", 26, 1, 26, 2, Q("0.358974 mm")),
    Sketcher.Constraint("DistanceY", 30, 1, 30, 2, Q("0.358974 mm")),
    Sketcher.Constraint("DistanceY", 32, 1, 32, 2, Q("1.076923 mm")),
    Sketcher.Constraint("DistanceY", 47, 1, 47, 2, Q("0.358974 mm")),
    Sketcher.Constraint("DistanceX", 0, 2, -1, 1, Q("7.80931 mm")),
    Sketcher.Constraint("DistanceX", 23, 2, -1, 1, Q("1.258028 mm")),
    Sketcher.Constraint("DistanceX", -1, 1, 36, 2, Q("2.915049 mm")),
])
pocket2 = doc.addObject("PartDesign::Pocket", "Pocket001")
body.addObject(pocket2)
pocket2.Profile = sketch3
pocket2.Length = 5

doc.recompute()
